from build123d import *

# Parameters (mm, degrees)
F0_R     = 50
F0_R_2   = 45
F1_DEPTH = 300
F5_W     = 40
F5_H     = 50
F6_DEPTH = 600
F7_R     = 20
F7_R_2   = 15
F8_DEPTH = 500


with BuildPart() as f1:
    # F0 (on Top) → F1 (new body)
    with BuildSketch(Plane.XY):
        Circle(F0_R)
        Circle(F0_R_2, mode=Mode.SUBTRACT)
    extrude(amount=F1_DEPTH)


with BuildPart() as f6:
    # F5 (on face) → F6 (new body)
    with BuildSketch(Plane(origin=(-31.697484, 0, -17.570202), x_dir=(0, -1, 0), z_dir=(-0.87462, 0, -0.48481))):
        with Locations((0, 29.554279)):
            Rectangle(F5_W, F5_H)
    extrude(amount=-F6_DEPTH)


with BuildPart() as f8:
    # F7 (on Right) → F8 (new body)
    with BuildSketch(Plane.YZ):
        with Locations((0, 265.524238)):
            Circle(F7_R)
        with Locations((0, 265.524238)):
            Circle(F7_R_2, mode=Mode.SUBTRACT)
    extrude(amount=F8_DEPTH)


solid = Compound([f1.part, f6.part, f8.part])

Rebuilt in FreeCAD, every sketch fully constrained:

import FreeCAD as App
import Part
import Sketcher
from FreeCAD import Vector

doc = App.newDocument("Part")
body = doc.addObject("PartDesign::Body", "Body")

sketch1 = doc.addObject("Sketcher::SketchObject", "Sketch")
body.addObject(sketch1)
sketch1.AttachmentSupport = (doc.XY_Plane, [""])
sketch1.MapMode = "FlatFace"
sketch1.addGeometry([
    Part.Circle(Vector(0, 0, 0), Vector(0, 0, 1), 50),
    Part.Circle(Vector(0, 0, 0), Vector(0, 0, 1), 45),
], False)
sketch1.addConstraint([
    Sketcher.Constraint("Coincident", 0, 3, -1, 1),
    Sketcher.Constraint("Coincident", 1, 3, -1, 1),
    Sketcher.Constraint("Diameter", 0, 100.0),
    Sketcher.Constraint("Diameter", 1, 90.0),
])
pad1 = doc.addObject("PartDesign::Pad", "Pad")
body.addObject(pad1)
pad1.Profile = sketch1
pad1.Length = 300
body2 = doc.addObject("PartDesign::Body", "Body001")

sketch2 = doc.addObject("Sketcher::SketchObject", "Sketch001")
body2.addObject(sketch2)
sketch2.Placement = App.Placement(Vector(-31.697484, 0, -17.570202), App.Rotation(Vector(0, -1, 0), Vector(-0.484809787, 0, 0.874619615), Vector(-0.874619615, 0, -0.484809787), "ZXY"))
sketch2.addGeometry([
    Part.LineSegment(Vector(-20, 55, 0), Vector(-20, 5, 0)),
    Part.LineSegment(Vector(-20, 5, 0), Vector(20, 5, 0)),
    Part.LineSegment(Vector(20, 5, 0), Vector(20, 55, 0)),
    Part.LineSegment(Vector(20, 55, 0), Vector(-20, 55, 0)),
], False)
sketch2.addConstraint([
    Sketcher.Constraint("Coincident", 0, 2, 1, 1),
    Sketcher.Constraint("Coincident", 1, 2, 2, 1),
    Sketcher.Constraint("Coincident", 2, 2, 3, 1),
    Sketcher.Constraint("Coincident", 3, 2, 0, 1),
    Sketcher.Constraint("Vertical", 0),
    Sketcher.Constraint("Horizontal", 1),
    Sketcher.Constraint("Vertical", 2),
    Sketcher.Constraint("Horizontal", 3),
    Sketcher.Constraint("DistanceX", 1, 1, 1, 2, 40.0),
    Sketcher.Constraint("DistanceY", 0, 2, 0, 1, 50.0),
    Sketcher.Constraint("DistanceX", 0, 2, -1, 1, 20.0),
    Sketcher.Constraint("DistanceY", -1, 1, 0, 2, 4.554279),
])
pad2 = doc.addObject("PartDesign::Pad", "Pad001")
body2.addObject(pad2)
pad2.Profile = sketch2
pad2.Length = 600
pad2.Reversed = True
body3 = doc.addObject("PartDesign::Body", "Body002")

sketch3 = doc.addObject("Sketcher::SketchObject", "Sketch002")
body3.addObject(sketch3)
sketch3.AttachmentSupport = (doc.getObject("YZ_Plane002"), [""])
sketch3.MapMode = "FlatFace"
sketch3.addGeometry([
    Part.Circle(Vector(0, 266, 0), Vector(0, 0, 1), 20),
    Part.Circle(Vector(0, 266, 0), Vector(0, 0, 1), 15),
], False)
sketch3.addConstraint([
    Sketcher.Constraint("Coincident", 1, 3, 0, 3),
    Sketcher.Constraint("PointOnObject", 0, 3, -2),
    Sketcher.Constraint("Diameter", 0, 40.0),
    Sketcher.Constraint("Diameter", 1, 30.0),
    Sketcher.Constraint("DistanceY", -1, 1, 0, 3, 265.524238),
])
pad3 = doc.addObject("PartDesign::Pad", "Pad002")
body3.addObject(pad3)
pad3.Profile = sketch3
pad3.Length = 500

doc.recompute()
